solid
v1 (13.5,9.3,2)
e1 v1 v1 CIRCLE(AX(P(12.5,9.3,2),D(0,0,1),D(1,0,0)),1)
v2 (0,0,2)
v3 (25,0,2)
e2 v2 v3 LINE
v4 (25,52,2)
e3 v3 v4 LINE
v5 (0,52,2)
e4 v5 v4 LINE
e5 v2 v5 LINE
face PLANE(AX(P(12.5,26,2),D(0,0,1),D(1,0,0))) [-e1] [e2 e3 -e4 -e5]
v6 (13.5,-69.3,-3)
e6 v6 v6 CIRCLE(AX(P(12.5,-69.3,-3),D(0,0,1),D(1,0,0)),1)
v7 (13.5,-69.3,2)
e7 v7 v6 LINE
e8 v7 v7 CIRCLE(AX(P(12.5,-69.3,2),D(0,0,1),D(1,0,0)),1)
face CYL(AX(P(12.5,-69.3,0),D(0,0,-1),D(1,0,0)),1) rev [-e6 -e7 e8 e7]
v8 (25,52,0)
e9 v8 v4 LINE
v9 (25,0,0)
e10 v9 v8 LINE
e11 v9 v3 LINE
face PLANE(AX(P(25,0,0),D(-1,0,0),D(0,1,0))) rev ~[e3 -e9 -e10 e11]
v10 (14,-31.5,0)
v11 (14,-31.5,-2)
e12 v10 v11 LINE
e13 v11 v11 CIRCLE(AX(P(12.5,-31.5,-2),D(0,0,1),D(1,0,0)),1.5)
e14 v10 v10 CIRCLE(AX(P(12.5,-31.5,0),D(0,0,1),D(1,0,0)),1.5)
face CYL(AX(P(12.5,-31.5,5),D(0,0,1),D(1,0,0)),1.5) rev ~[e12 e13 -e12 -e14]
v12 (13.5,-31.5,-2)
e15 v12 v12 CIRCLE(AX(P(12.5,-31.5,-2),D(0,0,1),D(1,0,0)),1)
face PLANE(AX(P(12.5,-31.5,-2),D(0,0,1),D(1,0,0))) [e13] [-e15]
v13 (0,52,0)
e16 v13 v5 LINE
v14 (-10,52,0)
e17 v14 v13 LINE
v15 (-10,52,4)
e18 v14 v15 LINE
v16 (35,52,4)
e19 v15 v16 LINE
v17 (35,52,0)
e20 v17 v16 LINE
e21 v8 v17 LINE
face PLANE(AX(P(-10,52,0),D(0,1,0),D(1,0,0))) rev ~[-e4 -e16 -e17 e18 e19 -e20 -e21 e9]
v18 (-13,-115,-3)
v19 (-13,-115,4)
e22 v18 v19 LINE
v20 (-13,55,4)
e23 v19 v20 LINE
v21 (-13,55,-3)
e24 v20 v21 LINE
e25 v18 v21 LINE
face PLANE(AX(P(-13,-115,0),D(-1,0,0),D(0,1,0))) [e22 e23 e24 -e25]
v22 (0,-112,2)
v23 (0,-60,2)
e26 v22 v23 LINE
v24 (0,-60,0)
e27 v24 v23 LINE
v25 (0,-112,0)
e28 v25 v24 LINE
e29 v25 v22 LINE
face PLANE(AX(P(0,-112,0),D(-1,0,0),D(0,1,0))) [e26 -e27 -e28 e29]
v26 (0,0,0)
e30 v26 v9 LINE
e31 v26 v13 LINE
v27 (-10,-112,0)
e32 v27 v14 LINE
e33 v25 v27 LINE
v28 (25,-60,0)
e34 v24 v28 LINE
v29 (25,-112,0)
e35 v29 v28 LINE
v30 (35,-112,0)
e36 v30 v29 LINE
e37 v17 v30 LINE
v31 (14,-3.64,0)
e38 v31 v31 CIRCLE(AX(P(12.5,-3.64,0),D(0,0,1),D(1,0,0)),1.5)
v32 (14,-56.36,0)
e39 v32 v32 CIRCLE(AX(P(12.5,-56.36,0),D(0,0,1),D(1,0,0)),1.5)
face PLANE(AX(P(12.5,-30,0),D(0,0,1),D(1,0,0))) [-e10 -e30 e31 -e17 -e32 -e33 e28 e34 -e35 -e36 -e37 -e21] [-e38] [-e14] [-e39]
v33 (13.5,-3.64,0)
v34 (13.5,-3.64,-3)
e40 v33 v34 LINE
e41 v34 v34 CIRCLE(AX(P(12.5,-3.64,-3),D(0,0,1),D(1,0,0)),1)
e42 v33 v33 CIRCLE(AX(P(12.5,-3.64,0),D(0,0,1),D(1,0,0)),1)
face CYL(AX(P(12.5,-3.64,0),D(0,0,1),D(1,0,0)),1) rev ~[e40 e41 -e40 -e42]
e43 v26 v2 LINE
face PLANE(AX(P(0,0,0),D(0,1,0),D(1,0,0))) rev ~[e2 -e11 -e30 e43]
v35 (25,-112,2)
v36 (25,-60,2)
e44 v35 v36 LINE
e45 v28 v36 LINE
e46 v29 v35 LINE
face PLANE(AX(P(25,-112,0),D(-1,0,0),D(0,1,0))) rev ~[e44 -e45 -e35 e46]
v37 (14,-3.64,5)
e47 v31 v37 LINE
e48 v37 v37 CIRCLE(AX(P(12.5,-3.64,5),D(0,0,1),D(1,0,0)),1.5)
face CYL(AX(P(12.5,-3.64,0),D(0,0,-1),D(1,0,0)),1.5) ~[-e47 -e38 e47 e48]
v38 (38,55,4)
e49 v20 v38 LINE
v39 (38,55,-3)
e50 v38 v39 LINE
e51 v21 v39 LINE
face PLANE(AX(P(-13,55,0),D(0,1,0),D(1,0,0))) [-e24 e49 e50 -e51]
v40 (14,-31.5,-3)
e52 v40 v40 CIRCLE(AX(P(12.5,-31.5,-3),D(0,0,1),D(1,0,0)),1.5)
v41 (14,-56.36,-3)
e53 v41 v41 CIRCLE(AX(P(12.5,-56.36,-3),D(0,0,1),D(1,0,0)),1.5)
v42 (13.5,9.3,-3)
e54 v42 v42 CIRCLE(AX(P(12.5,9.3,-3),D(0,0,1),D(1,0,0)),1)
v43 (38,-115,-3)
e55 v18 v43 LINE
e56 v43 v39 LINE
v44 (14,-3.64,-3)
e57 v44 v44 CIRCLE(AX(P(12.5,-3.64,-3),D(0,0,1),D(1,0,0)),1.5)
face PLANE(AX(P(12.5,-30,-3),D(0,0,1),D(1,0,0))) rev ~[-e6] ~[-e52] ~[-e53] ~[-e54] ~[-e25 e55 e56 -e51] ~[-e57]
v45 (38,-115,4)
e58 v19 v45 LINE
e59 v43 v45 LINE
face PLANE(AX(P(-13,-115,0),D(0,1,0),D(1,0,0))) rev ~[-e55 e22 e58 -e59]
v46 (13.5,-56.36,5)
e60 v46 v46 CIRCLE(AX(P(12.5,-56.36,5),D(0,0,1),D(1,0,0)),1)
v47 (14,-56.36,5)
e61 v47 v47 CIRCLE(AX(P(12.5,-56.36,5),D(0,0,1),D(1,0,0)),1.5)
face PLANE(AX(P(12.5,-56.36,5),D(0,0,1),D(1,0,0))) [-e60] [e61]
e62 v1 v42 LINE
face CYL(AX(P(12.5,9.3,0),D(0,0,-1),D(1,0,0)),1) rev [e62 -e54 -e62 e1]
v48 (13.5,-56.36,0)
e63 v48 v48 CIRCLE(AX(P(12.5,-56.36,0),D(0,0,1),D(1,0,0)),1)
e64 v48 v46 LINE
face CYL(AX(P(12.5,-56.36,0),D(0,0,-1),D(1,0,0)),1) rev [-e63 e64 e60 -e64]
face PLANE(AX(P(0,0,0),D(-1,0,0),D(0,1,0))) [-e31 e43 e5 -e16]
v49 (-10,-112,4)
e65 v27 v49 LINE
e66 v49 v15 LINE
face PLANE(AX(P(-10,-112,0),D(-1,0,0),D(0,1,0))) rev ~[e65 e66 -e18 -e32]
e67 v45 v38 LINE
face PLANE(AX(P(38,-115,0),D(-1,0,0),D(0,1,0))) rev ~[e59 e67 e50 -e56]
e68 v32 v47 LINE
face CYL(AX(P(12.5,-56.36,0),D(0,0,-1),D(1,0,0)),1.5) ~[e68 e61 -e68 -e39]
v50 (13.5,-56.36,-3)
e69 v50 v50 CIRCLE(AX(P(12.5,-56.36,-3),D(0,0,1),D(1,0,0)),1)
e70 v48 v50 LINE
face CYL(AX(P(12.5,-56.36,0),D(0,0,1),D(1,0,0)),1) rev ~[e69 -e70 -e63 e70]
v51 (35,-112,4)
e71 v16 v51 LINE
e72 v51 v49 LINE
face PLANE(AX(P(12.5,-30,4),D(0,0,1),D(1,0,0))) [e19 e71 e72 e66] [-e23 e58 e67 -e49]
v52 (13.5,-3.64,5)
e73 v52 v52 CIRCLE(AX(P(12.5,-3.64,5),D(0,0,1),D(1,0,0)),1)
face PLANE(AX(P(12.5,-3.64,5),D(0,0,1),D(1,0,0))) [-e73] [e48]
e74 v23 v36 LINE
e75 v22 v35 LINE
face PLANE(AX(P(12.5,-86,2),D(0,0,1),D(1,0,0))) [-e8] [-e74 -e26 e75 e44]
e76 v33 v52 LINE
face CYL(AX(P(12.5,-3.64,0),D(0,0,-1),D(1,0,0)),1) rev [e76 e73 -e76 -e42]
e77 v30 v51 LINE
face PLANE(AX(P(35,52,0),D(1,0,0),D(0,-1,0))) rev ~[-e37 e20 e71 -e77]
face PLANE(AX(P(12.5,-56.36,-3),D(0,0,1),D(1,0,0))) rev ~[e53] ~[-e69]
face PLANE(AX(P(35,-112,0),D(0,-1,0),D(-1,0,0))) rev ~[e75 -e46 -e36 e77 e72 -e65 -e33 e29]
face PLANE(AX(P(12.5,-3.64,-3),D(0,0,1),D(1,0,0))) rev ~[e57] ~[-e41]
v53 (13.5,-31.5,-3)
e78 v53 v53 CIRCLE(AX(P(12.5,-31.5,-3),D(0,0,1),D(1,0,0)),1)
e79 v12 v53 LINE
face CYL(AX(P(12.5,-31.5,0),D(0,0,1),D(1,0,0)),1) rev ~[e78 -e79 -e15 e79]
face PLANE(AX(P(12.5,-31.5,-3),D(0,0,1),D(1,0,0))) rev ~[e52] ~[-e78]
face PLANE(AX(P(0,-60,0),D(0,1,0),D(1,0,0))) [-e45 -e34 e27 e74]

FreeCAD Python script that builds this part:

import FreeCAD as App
import Part
import Sketcher
from FreeCAD import Vector
Q = App.Units.Quantity

doc = App.newDocument("Part")
body = doc.addObject("PartDesign::Body", "Body")
body.AllowCompound = True

sketch1 = doc.addObject("Sketcher::SketchObject", "Sketch")
body.addObject(sketch1)
sketch1.AttachmentSupport = (doc.XY_Plane, [""])
sketch1.MapMode = "FlatFace"
sketch1.addGeometry([
    Part.LineSegment(Vector(0, -60, 0), Vector(0, -112, 0)),
    Part.LineSegment(Vector(0, -112, 0), Vector(25, -112, 0)),
    Part.LineSegment(Vector(25, -112, 0), Vector(25, -60, 0)),
    Part.LineSegment(Vector(25, -60, 0), Vector(0, -60, 0)),
    Part.Circle(Vector(12.5, -69.3, 0), Vector(0, 0, 1), 1),
    Part.LineSegment(Vector(0, 52, 0), Vector(0, 0, 0)),
    Part.LineSegment(Vector(0, 0, 0), Vector(25, 0, 0)),
    Part.LineSegment(Vector(25, 0, 0), Vector(25, 52, 0)),
    Part.LineSegment(Vector(25, 52, 0), Vector(0, 52, 0)),
    Part.Circle(Vector(12.5, 9.3, 0), Vector(0, 0, 1), 1),
], False)
sketch1.addConstraint([
    Sketcher.Constraint("Coincident", 0, 2, 1, 1),
    Sketcher.Constraint("Coincident", 1, 2, 2, 1),
    Sketcher.Constraint("Coincident", 2, 2, 3, 1),
    Sketcher.Constraint("Coincident", 3, 2, 0, 1),
    Sketcher.Constraint("Coincident", 5, 2, 6, 1),
    Sketcher.Constraint("Coincident", 6, 2, 7, 1),
    Sketcher.Constraint("Coincident", 7, 2, 8, 1),
    Sketcher.Constraint("Coincident", 8, 2, 5, 1),
    Sketcher.Constraint("Vertical", 0),
    Sketcher.Constraint("Horizontal", 1),
    Sketcher.Constraint("Vertical", 2),
    Sketcher.Constraint("Horizontal", 3),
    Sketcher.Constraint("Vertical", 5),
    Sketcher.Constraint("Horizontal", 6),
    Sketcher.Constraint("Vertical", 7),
    Sketcher.Constraint("Horizontal", 8),
    Sketcher.Constraint("Coincident", 5, 2, -1, 1),
    Sketcher.Constraint("Equal", 4, 9),
    Sketcher.Constraint("PointOnObject", 0, 2, -2),
    Sketcher.Constraint("Vertical", 4, 3, 9, 3),
    Sketcher.Constraint("Vertical", 2, 2, 6, 2),
    Sketcher.Constraint("Equal", 2, 5),
    Sketcher.Constraint("Diameter", 4, Q("2 mm")),
    Sketcher.Constraint("DistanceX", 1, 1, 1, 2, Q("25 mm")),
    Sketcher.Constraint("DistanceY", 0, 2, 0, 1, Q("52 mm")),
    Sketcher.Constraint("DistanceY", 0, 2, -1, 1, Q("112 mm")),
    Sketcher.Constraint("DistanceX", -1, 1, 4, 3, Q("12.5 mm")),
    Sketcher.Constraint("DistanceY", 4, 3, -1, 1, Q("69.3 mm")),
    Sketcher.Constraint("DistanceY", -1, 1, 9, 3, Q("9.3 mm")),
])
pad1 = doc.addObject("PartDesign::Pad", "Pad")
body.addObject(pad1)
pad1.Profile = sketch1
pad1.Length = 2

sketch2 = doc.addObject("Sketcher::SketchObject", "Sketch001")
body.addObject(sketch2)
sketch2.AttachmentSupport = (doc.XY_Plane, [""])
sketch2.MapMode = "FlatFace"
sketch2.addGeometry([
    Part.LineSegment(Vector(-13, 55, 0), Vector(-13, -115, 0)),
    Part.LineSegment(Vector(-13, -115, 0), Vector(38, -115, 0)),
    Part.LineSegment(Vector(38, -115, 0), Vector(38, 55, 0)),
    Part.LineSegment(Vector(38, 55, 0), Vector(-13, 55, 0)),
    Part.Circle(Vector(12.5, -69.3, 0), Vector(0, 0, 1), 1),
    Part.Circle(Vector(12.5, -56.4, 0), Vector(0, 0, 1), 1.5),
    Part.Circle(Vector(12.5, -31.5, 0), Vector(0, 0, 1), 1.5),
    Part.Circle(Vector(12.5, -3.6, 0), Vector(0, 0, 1), 1.5),
    Part.Circle(Vector(12.5, 9.3, 0), Vector(0, 0, 1), 1),
], False)
sketch2.addConstraint([
    Sketcher.Constraint("Coincident", 0, 2, 1, 1),
    Sketcher.Constraint("Coincident", 1, 2, 2, 1),
    Sketcher.Constraint("Coincident", 2, 2, 3, 1),
    Sketcher.Constraint("Coincident", 3, 2, 0, 1),
    Sketcher.Constraint("Vertical", 0),
    Sketcher.Constraint("Horizontal", 1),
    Sketcher.Constraint("Vertical", 2),
    Sketcher.Constraint("Horizontal", 3),
    Sketcher.Constraint("Equal", 5, 6),
    Sketcher.Constraint("Equal", 6, 7),
    Sketcher.Constraint("Equal", 4, 8),
    Sketcher.Constraint("Vertical", 4, 3, 5, 3),
    Sketcher.Constraint("Vertical", 5, 3, 6, 3),
    Sketcher.Constraint("Vertical", 6, 3, 7, 3),
    Sketcher.Constraint("Vertical", 7, 3, 8, 3),
    Sketcher.Constraint("Diameter", 4, Q("2 mm")),
    Sketcher.Constraint("Diameter", 5, Q("3 mm")),
    Sketcher.Constraint("DistanceX", 1, 1, 1, 2, Q("51 mm")),
    Sketcher.Constraint("DistanceY", 0, 2, 0, 1, Q("170 mm")),
    Sketcher.Constraint("DistanceX", 0, 2, -1, 1, Q("13 mm")),
    Sketcher.Constraint("DistanceY", 0, 2, -1, 1, Q("115 mm")),
    Sketcher.Constraint("DistanceX", -1, 1, 4, 3, Q("12.5 mm")),
    Sketcher.Constraint("DistanceY", 4, 3, -1, 1, Q("69.3 mm")),
    Sketcher.Constraint("DistanceY", 6, 3, -1, 1, Q("31.5 mm")),
    Sketcher.Constraint("DistanceY", -1, 1, 8, 3, Q("9.3 mm")),
    Sketcher.Constraint("DistanceY", 5, 3, -1, 1, Q("56.36 mm")),
    Sketcher.Constraint("DistanceY", 7, 3, -1, 1, Q("3.64 mm")),
])
pad2 = doc.addObject("PartDesign::Pad", "Pad001")
body.addObject(pad2)
pad2.Profile = sketch2
pad2.Length = 3
pad2.Reversed = True

sketch3 = doc.addObject("Sketcher::SketchObject", "Sketch002")
body.addObject(sketch3)
sketch3.AttachmentSupport = (doc.XY_Plane, [""])
sketch3.MapMode = "FlatFace"
sketch3.addGeometry([
    Part.LineSegment(Vector(-13, 55, 0), Vector(-13, -115, 0)),
    Part.LineSegment(Vector(-13, -115, 0), Vector(38, -115, 0)),
    Part.LineSegment(Vector(38, -115, 0), Vector(38, 55, 0)),
    Part.LineSegment(Vector(38, 55, 0), Vector(-13, 55, 0)),
    Part.LineSegment(Vector(35, -112, 0), Vector(-10, -112, 0)),
    Part.LineSegment(Vector(-10, -112, 0), Vector(-10, 52, 0)),
    Part.LineSegment(Vector(-10, 52, 0), Vector(35, 52, 0)),
    Part.LineSegment(Vector(35, 52, 0), Vector(35, -112, 0)),
], False)
sketch3.addConstraint([
    Sketcher.Constraint("Coincident", 0, 2, 1, 1),
    Sketcher.Constraint("Coincident", 1, 2, 2, 1),
    Sketcher.Constraint("Coincident", 2, 2, 3, 1),
    Sketcher.Constraint("Coincident", 3, 2, 0, 1),
    Sketcher.Constraint("Coincident", 4, 2, 5, 1),
    Sketcher.Constraint("Coincident", 5, 2, 6, 1),
    Sketcher.Constraint("Coincident", 6, 2, 7, 1),
    Sketcher.Constraint("Coincident", 7, 2, 4, 1),
    Sketcher.Constraint("Vertical", 0),
    Sketcher.Constraint("Horizontal", 1),
    Sketcher.Constraint("Vertical", 2),
    Sketcher.Constraint("Horizontal", 3),
    Sketcher.Constraint("Horizontal", 4),
    Sketcher.Constraint("Vertical", 5),
    Sketcher.Constraint("Horizontal", 6),
    Sketcher.Constraint("Vertical", 7),
    Sketcher.Constraint("DistanceX", 1, 1, 1, 2, Q("51 mm")),
    Sketcher.Constraint("DistanceX", 4, 2, 4, 1, Q("45 mm")),
    Sketcher.Constraint("DistanceY", 0, 2, 0, 1, Q("170 mm")),
    Sketcher.Constraint("DistanceY", 5, 1, 5, 2, Q("164 mm")),
    Sketcher.Constraint("DistanceX", 0, 2, -1, 1, Q("13 mm")),
    Sketcher.Constraint("DistanceY", 0, 2, -1, 1, Q("115 mm")),
    Sketcher.Constraint("DistanceX", 4, 2, -1, 1, Q("10 mm")),
    Sketcher.Constraint("DistanceY", 4, 2, -1, 1, Q("112 mm")),
])
pad3 = doc.addObject("PartDesign::Pad", "Pad002")
body.addObject(pad3)
pad3.Profile = sketch3
pad3.Length = 4

sketch4 = doc.addObject("Sketcher::SketchObject", "Sketch003")
body.addObject(sketch4)
sketch4.AttachmentSupport = (doc.XY_Plane, [""])
sketch4.MapMode = "FlatFace"
sketch4.addGeometry([
    Part.Circle(Vector(12.5, -3.6, 0), Vector(0, 0, 1), 1.5),
    Part.Circle(Vector(12.5, -3.6, 0), Vector(0, 0, 1), 1),
    Part.Circle(Vector(12.5, -31.5, 0), Vector(0, 0, 1), 1.5),
    Part.Circle(Vector(12.5, -31.5, 0), Vector(0, 0, 1), 1),
    Part.Circle(Vector(12.5, -56.4, 0), Vector(0, 0, 1), 1.5),
    Part.Circle(Vector(12.5, -56.4, 0), Vector(0, 0, 1), 1),
], False)
sketch4.addConstraint([
    Sketcher.Constraint("Coincident", 1, 3, 0, 3),
    Sketcher.Constraint("Coincident", 3, 3, 2, 3),
    Sketcher.Constraint("Coincident", 5, 3, 4, 3),
    Sketcher.Constraint("Equal", 0, 2),
    Sketcher.Constraint("Equal", 1, 3),
    Sketcher.Constraint("Equal", 2, 4),
    Sketcher.Constraint("Equal", 3, 5),
    Sketcher.Constraint("Vertical", 1, 3, 2, 3),
    Sketcher.Constraint("Vertical", 3, 3, 4, 3),
    Sketcher.Constraint("Diameter", 0, Q("3 mm")),
    Sketcher.Constraint("Diameter", 1, Q("2 mm")),
    Sketcher.Constraint("DistanceX", -1, 1, 0, 3, Q("12.5 mm")),
    Sketcher.Constraint("DistanceY", 2, 3, -1, 1, Q("31.5 mm")),
    Sketcher.Constraint("DistanceY", 0, 3, -1, 1, Q("3.64 mm")),
    Sketcher.Constraint("DistanceY", 4, 3, -1, 1, Q("56.36 mm")),
])
pad4 = doc.addObject("PartDesign::Pad", "Pad003")
body.addObject(pad4)
pad4.Profile = sketch4
pad4.Type = "TwoLengths"
pad4.Length = 5
pad4.Length2 = 3

sketch5 = doc.addObject("Sketcher::SketchObject", "Sketch004")
body.addObject(sketch5)
sketch5.AttachmentSupport = (doc.XY_Plane, [""])
sketch5.MapMode = "FlatFace"
sketch5.AttachmentOffset = App.Placement(Vector(0, 0, 5), App.Rotation())
sketch5.addGeometry([
    Part.Circle(Vector(12.5, -31.5, 0), Vector(0, 0, 1), 1.5),
    Part.Circle(Vector(12.5, -31.5, 0), Vector(0, 0, 1), 1),
], False)
sketch5.addConstraint([
    Sketcher.Constraint("Coincident", 1, 3, 0, 3),
    Sketcher.Constraint("Diameter", 0, Q("3 mm")),
    Sketcher.Constraint("Diameter", 1, Q("2 mm")),
    Sketcher.Constraint("DistanceX", -1, 1, 0, 3, Q("12.5 mm")),
    Sketcher.Constraint("DistanceY", 0, 3, -1, 1, Q("31.5 mm")),
])
pocket1 = doc.addObject("PartDesign::Pocket", "Pocket")
body.addObject(pocket1)
pocket1.Profile = sketch5
pocket1.Length = 7

doc.recompute()
